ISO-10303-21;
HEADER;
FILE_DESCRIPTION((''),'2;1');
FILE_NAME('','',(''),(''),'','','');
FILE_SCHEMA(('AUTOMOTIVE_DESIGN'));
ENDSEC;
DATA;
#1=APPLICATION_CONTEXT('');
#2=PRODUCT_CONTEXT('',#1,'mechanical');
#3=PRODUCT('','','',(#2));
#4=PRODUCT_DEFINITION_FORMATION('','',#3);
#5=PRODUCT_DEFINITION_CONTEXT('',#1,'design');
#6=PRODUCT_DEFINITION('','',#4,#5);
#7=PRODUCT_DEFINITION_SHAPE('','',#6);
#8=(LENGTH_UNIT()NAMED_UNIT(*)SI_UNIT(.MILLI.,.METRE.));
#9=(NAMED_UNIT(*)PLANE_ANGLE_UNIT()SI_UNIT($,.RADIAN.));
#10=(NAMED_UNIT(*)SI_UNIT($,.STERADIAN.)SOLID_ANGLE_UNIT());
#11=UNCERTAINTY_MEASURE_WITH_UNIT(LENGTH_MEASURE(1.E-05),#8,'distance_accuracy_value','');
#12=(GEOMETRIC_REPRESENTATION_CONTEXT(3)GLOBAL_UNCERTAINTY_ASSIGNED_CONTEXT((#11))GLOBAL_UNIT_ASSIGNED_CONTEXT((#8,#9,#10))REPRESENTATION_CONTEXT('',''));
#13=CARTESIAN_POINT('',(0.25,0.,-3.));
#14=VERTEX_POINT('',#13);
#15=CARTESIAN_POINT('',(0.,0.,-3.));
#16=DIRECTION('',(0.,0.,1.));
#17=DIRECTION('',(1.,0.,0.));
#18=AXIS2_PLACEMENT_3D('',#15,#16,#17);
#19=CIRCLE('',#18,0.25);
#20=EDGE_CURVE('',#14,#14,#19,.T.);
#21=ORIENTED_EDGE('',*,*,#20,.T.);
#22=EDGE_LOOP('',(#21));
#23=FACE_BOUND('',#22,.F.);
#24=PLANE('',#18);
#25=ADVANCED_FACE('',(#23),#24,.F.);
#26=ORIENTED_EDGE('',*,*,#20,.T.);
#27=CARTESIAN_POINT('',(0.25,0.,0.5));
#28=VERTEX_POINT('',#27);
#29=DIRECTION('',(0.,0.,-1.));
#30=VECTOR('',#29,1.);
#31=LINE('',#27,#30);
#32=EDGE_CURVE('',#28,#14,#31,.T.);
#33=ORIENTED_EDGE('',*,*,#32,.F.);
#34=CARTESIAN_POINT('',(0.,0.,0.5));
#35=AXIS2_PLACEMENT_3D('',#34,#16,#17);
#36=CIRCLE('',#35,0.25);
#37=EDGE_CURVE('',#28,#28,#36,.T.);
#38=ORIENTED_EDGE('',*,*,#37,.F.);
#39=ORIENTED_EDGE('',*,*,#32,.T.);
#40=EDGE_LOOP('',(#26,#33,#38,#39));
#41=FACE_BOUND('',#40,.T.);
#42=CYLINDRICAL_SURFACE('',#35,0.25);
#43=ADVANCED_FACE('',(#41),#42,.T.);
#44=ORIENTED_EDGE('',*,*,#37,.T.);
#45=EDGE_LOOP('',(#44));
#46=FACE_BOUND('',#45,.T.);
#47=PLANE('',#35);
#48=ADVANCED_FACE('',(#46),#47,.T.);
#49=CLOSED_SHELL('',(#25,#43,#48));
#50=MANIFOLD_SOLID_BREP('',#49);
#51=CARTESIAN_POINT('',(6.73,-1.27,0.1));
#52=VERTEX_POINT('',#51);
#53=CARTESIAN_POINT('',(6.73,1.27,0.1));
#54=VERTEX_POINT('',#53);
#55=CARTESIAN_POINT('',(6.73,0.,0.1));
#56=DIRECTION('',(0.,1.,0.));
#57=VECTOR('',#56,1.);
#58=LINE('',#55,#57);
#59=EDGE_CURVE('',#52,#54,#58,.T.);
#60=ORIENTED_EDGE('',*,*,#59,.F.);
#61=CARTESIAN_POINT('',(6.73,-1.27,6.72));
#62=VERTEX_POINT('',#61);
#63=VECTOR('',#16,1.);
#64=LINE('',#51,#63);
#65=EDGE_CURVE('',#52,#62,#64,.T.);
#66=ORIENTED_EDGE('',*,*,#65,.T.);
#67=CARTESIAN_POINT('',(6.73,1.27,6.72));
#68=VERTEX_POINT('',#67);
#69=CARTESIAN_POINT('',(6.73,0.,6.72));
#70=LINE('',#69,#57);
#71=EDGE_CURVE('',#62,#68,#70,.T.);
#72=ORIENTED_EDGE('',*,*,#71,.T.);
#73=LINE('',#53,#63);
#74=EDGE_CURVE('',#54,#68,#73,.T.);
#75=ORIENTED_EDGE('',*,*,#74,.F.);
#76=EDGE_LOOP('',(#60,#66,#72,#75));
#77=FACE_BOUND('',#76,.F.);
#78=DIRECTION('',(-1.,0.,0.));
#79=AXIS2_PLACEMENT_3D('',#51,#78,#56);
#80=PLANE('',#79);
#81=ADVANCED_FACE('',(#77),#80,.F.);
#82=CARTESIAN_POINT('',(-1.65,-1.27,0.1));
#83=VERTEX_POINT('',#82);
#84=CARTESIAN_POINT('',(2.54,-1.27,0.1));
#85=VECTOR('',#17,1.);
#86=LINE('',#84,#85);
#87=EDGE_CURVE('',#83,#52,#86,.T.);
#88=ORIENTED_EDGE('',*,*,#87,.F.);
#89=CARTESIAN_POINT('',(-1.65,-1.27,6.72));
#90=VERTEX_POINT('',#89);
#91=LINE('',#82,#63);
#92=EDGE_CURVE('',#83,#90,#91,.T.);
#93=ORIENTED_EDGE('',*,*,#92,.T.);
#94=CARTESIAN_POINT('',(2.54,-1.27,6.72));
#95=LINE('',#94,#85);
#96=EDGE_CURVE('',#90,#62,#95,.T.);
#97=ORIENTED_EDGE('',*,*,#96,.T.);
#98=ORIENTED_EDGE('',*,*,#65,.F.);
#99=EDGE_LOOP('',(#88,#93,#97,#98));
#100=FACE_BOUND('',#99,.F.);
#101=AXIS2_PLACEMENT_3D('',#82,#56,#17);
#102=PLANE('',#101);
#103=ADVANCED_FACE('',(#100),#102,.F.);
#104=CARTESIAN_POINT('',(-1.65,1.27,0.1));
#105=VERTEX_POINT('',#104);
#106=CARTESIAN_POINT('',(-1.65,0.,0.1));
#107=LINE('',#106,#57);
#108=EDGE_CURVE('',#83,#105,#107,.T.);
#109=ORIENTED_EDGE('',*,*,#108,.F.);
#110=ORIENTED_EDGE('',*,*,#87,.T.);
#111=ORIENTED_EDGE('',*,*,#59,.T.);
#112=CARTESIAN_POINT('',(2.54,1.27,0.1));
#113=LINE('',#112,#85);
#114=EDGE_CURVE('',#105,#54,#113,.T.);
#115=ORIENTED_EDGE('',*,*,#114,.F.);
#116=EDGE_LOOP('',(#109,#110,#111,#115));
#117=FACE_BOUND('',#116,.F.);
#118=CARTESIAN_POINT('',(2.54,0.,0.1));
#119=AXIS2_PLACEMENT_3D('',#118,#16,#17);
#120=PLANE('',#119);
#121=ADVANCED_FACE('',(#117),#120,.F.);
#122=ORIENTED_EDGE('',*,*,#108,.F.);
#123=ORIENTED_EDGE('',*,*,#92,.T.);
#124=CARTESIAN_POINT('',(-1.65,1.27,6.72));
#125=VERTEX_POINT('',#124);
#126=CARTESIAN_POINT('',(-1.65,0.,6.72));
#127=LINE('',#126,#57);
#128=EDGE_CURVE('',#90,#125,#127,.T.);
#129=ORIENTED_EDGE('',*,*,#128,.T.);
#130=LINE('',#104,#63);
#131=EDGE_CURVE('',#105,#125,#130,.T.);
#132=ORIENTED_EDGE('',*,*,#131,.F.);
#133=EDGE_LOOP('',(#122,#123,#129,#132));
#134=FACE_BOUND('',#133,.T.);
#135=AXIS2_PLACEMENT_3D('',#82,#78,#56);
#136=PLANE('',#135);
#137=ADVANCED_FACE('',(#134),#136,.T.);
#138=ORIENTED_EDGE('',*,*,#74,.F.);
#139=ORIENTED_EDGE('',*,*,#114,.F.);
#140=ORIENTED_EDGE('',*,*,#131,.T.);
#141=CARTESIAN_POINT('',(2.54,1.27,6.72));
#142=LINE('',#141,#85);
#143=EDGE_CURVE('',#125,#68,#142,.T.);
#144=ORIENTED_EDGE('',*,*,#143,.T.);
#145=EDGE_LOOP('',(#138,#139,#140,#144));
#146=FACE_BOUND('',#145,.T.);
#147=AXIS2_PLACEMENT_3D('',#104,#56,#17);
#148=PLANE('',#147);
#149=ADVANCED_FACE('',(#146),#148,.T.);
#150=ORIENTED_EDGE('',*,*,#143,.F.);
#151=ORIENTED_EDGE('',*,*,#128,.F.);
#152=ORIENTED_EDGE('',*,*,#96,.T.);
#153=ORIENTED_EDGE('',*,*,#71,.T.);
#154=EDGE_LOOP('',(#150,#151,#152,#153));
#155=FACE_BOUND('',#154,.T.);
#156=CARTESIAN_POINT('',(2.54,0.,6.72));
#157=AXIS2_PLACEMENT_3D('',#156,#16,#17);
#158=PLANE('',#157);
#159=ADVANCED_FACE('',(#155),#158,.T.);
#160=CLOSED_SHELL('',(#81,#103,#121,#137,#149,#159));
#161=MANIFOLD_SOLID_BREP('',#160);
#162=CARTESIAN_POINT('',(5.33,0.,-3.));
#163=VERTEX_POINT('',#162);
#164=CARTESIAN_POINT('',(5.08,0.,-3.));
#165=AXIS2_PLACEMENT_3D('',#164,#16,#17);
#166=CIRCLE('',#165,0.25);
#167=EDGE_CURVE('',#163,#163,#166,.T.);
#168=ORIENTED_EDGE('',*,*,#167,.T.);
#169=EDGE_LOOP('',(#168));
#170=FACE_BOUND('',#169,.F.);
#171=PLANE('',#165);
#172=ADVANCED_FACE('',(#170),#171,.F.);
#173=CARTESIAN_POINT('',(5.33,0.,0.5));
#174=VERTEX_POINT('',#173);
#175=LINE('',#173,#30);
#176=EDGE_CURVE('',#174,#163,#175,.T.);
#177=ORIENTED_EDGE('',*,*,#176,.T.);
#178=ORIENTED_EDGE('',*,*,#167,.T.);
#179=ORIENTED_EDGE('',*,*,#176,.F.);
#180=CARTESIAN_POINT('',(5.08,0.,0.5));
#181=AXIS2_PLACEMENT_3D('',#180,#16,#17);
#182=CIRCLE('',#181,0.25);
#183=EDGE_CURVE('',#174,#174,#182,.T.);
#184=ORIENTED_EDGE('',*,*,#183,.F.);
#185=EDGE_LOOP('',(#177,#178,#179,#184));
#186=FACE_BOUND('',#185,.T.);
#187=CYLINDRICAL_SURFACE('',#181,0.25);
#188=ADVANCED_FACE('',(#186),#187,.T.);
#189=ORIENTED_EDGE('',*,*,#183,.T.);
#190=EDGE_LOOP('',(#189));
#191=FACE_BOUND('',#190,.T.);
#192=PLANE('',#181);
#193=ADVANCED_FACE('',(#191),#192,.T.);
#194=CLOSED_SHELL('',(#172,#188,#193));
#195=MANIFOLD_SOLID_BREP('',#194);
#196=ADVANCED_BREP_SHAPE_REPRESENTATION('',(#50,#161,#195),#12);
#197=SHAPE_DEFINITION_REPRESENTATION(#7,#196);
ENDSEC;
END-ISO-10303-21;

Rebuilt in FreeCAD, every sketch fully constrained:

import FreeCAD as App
import Part
import Sketcher

V = App.Vector

doc = App.newDocument("Part")
body = doc.addObject("PartDesign::Body", "Body")

# Sketch on XY plane
sketch1 = doc.addObject("Sketcher::SketchObject", "Sketch")
body.addObject(sketch1)
sketch1.AttachmentSupport = (doc.XY_Plane, [""])
sketch1.MapMode = "FlatFace"
sketch1.AttachmentOffset = App.Placement(V(0, 0, 0.1), App.Rotation())
sketch1.addGeometry([
    Part.LineSegment(V(-1.65, 1.27, 0), V(-1.65, -1.27, 0)),
    Part.LineSegment(V(-1.65, -1.27, 0), V(6.73, -1.27, 0)),
    Part.LineSegment(V(6.73, -1.27, 0), V(6.73, 1.27, 0)),
    Part.LineSegment(V(6.73, 1.27, 0), V(-1.65, 1.27, 0)),
], False)
sketch1.addConstraint([
    Sketcher.Constraint("Coincident", 0, 2, 1, 1),
    Sketcher.Constraint("Coincident", 1, 2, 2, 1),
    Sketcher.Constraint("Coincident", 2, 2, 3, 1),
    Sketcher.Constraint("Coincident", 3, 2, 0, 1),
    Sketcher.Constraint("Vertical", 0),
    Sketcher.Constraint("Horizontal", 1),
    Sketcher.Constraint("Vertical", 2),
    Sketcher.Constraint("Horizontal", 3),
    Sketcher.Constraint("DistanceX", 1, 1, 1, 2, 8.38),
    Sketcher.Constraint("DistanceY", 0, 2, 0, 1, 2.54),
    Sketcher.Constraint("DistanceX", 0, 2, -1, 1, 1.65),
    Sketcher.Constraint("DistanceY", 0, 2, -1, 1, 1.27),
])
pad1 = doc.addObject("PartDesign::Pad", "Pad")
body.addObject(pad1)
pad1.Profile = sketch1
pad1.Length = 6.62
body2 = doc.addObject("PartDesign::Body", "Body001")
body2.AllowCompound = True

# Sketch on XY plane
sketch2 = doc.addObject("Sketcher::SketchObject", "Sketch001")
body2.addObject(sketch2)
sketch2.AttachmentSupport = (doc.getObject("XY_Plane001"), [""])
sketch2.MapMode = "FlatFace"
sketch2.AttachmentOffset = App.Placement(V(0, 0, 0.5), App.Rotation())
sketch2.addGeometry([
    Part.Circle(V(0, 0, 0), V(0, 0, 1), 0.25),
    Part.Circle(V(5.08, 0, 0), V(0, 0, 1), 0.25),
], False)
sketch2.addConstraint([
    Sketcher.Constraint("Coincident", 0, 3, -1, 1),
    Sketcher.Constraint("Equal", 0, 1),
    Sketcher.Constraint("PointOnObject", 1, 3, -1),
    Sketcher.Constraint("Diameter", 0, 0.5),
    Sketcher.Constraint("DistanceX", -1, 1, 1, 3, 5.08),
])
pad2 = doc.addObject("PartDesign::Pad", "Pad001")
body2.addObject(pad2)
pad2.Profile = sketch2
pad2.Length = 3.5
pad2.Reversed = True

doc.recompute()
